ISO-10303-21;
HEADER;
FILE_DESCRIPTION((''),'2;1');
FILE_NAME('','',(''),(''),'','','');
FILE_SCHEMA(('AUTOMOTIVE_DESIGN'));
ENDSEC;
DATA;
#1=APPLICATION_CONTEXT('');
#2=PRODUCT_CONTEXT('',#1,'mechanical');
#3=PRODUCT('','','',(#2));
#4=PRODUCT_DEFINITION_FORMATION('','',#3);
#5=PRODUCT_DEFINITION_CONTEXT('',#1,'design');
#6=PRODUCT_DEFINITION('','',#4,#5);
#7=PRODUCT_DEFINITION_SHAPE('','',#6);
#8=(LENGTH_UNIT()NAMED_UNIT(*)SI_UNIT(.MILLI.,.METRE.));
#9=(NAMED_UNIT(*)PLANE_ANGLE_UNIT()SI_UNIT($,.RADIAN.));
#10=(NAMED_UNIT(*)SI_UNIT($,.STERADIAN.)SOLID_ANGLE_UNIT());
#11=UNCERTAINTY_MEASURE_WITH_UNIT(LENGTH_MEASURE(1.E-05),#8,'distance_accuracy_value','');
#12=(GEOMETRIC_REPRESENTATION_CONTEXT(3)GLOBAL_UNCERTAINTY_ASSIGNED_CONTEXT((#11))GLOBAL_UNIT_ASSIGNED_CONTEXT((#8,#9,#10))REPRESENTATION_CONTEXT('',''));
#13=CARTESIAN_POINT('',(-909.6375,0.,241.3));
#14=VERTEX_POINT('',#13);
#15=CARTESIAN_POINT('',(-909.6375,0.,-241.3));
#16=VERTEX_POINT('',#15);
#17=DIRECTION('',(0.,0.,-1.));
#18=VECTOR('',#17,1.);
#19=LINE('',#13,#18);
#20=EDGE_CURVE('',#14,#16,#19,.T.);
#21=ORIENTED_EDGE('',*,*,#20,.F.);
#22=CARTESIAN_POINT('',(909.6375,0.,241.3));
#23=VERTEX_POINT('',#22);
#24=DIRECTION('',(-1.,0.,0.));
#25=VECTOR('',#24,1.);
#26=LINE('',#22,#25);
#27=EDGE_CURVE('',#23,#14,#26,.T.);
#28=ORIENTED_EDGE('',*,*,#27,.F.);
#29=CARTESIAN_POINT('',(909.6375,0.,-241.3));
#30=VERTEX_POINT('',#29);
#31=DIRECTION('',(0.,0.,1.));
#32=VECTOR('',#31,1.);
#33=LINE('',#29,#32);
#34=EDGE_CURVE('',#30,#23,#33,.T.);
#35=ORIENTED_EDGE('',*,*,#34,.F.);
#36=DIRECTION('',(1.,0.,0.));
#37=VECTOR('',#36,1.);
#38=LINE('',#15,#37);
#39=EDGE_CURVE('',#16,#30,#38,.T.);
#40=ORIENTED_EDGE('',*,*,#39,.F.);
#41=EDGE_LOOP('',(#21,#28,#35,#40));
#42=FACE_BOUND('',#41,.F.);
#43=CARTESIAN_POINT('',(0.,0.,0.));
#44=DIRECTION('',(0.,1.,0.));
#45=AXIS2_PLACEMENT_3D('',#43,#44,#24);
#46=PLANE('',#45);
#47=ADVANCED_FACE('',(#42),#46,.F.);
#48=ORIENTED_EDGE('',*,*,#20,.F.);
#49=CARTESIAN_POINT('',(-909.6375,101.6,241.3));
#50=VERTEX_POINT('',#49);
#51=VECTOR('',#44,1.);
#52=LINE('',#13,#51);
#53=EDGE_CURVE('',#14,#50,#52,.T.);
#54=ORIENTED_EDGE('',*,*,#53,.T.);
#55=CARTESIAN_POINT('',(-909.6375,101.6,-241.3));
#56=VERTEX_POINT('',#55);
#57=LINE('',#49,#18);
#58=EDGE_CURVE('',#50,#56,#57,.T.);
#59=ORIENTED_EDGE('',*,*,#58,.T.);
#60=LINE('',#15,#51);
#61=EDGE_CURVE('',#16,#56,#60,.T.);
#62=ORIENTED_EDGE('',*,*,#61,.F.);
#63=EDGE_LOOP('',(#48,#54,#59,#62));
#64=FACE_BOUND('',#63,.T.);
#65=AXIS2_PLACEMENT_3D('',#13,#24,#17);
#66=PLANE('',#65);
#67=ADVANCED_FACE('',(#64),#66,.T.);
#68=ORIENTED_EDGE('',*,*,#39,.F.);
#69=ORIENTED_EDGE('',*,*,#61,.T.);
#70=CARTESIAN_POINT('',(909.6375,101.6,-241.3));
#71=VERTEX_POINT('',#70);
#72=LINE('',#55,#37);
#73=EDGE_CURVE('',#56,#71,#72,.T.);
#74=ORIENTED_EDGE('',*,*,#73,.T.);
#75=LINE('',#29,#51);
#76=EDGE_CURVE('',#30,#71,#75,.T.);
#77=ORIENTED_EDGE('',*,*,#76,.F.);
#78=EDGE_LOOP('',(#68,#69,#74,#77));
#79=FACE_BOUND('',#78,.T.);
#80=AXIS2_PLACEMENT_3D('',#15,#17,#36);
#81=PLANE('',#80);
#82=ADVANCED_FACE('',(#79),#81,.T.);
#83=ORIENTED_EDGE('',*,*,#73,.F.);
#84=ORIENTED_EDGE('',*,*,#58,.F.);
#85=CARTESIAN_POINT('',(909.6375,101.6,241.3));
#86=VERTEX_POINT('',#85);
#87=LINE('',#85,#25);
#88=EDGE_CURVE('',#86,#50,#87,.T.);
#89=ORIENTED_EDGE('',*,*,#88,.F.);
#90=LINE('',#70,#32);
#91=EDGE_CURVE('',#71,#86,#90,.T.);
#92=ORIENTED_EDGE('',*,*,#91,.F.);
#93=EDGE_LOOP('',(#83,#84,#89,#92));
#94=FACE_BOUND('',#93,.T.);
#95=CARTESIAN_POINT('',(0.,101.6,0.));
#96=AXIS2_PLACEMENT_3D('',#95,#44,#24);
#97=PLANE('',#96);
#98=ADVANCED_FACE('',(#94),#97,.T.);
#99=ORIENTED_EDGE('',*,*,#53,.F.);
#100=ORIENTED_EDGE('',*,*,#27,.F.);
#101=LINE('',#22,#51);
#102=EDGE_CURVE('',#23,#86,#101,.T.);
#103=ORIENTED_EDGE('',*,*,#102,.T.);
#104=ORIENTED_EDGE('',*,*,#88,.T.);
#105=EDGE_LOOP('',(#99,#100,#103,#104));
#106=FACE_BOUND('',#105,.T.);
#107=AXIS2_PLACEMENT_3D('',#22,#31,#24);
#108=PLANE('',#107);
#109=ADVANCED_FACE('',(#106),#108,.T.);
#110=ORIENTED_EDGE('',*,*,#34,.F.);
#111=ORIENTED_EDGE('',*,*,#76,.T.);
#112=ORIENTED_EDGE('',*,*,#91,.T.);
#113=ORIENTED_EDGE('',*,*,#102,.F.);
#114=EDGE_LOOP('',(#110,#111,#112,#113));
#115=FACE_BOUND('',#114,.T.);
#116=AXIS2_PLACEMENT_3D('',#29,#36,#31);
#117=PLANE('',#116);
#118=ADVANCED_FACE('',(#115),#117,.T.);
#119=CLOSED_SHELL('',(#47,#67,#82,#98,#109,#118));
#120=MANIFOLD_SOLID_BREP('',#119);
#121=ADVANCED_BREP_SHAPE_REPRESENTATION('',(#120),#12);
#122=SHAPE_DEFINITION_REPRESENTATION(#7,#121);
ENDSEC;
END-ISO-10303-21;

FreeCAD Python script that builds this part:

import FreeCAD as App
import Part
import Sketcher
Q = App.Units.Quantity


def add_polygon(sketch, points):
    """Adds a closed chain of lines whose ends are joined by coincident constraints."""
    first, n = sketch.GeometryCount, len(points)
    for a, b in zip(points, points[1:] + points[:1]):
        sketch.addGeometry(Part.LineSegment(App.Vector(*a, 0), App.Vector(*b, 0)), False)
    for i in range(n):
        sketch.addConstraint(Sketcher.Constraint("Coincident", first + i, 2, first + (i + 1) % n, 1))

doc = App.newDocument("Part")
params = doc.addObject("Spreadsheet::Sheet", "Params")
for row, (alias, value) in enumerate([
    ("sketch1_height", "19 in"),
    ("sketch1_width", "71.625 in"),
    ("pad1_length", "4 in"),
], start=1):
    params.set(f"A{row}", alias)
    params.set(f"B{row}", "=" + value)
    params.setAlias(f"B{row}", alias)

body = doc.addObject("PartDesign::Body", "Body")

sketch1 = body.newObject("Sketcher::SketchObject", "Sketch")
sketch1.AttachmentSupport = (doc.getObject("XZ_Plane"), [""])
sketch1.MapMode = "FlatFace"
add_polygon(sketch1, [(910, -241), (-910, -241), (-910, 241), (910, 241)])
sketch1.addConstraint(Sketcher.Constraint("Horizontal", 0))
sketch1.addConstraint(Sketcher.Constraint("Vertical", 1))
sketch1.addConstraint(Sketcher.Constraint("Horizontal", 2))
sketch1.addConstraint(Sketcher.Constraint("Vertical", 3))
sketch1.addConstraint(Sketcher.Constraint("Symmetric", 0, 2, 2, 2, -1, 1))
sketch1.addConstraint(Sketcher.Constraint("DistanceY", 1, 1, 1, 2, Q("19 in")))
sketch1.addConstraint(Sketcher.Constraint("DistanceX", 0, 2, 0, 1, Q("71.625 in")))
sketch1.setExpression("Constraints[9]", "Params.sketch1_height")
sketch1.setExpression("Constraints[10]", "Params.sketch1_width")
pad1 = body.newObject("PartDesign::Pad", "Pad")
pad1.Profile = sketch1
pad1.setExpression("Length", "Params.pad1_length")
pad1.Reversed = True

doc.recompute()
